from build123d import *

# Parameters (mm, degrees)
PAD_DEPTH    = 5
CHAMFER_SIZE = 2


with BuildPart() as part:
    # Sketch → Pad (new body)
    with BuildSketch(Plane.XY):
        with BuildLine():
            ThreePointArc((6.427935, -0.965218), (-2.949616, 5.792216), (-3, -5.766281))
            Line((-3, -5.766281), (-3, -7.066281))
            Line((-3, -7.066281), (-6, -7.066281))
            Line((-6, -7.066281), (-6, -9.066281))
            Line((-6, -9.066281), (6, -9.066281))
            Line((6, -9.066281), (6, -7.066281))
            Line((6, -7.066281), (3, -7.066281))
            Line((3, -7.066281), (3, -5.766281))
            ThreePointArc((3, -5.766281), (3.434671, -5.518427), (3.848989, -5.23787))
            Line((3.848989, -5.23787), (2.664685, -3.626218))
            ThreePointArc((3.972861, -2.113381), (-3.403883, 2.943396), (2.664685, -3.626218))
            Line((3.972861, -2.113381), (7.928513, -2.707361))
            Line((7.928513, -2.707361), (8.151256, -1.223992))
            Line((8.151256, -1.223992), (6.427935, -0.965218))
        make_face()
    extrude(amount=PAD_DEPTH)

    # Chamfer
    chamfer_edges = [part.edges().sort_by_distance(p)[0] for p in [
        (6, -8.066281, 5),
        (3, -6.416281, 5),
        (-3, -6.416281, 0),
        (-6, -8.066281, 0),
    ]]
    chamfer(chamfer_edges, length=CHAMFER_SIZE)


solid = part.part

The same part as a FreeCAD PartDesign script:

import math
import FreeCAD as App
import Part
import Sketcher

V = App.Vector


def edges_at(feature, points):
    """Names of the edges that pass closest to the given points."""
    edges = feature.Shape.Edges
    near = lambda p: min(range(len(edges)), key=lambda i: edges[i].distToShape(Part.Vertex(*p))[0])
    return sorted({f"Edge{near(p) + 1}" for p in points})

doc = App.newDocument("Part")
body = doc.addObject("PartDesign::Body", "Body")

sketch1 = body.newObject("Sketcher::SketchObject", "Sketch")
sketch1.AttachmentSupport = (doc.getObject("XY_Plane"), [""])
sketch1.MapMode = "FlatFace"
sketch1.addGeometry([
    Part.ArcOfCircle(Part.Circle(V(0, 0, 0), V(0, 0, 1), 6.5), math.radians(-8.539726), math.radians(242.513575)),
    Part.LineSegment(V(-3, -5.766281, 0), V(-3, -7.066281, 0)),
    Part.LineSegment(V(-3, -7.066281, 0), V(-6, -7.066281, 0)),
    Part.LineSegment(V(-6, -7.066281, 0), V(-6, -9.066281, 0)),
    Part.LineSegment(V(-6, -9.066281, 0), V(6, -9.066281, 0)),
    Part.LineSegment(V(6, -9.066281, 0), V(6, -7.066281, 0)),
    Part.LineSegment(V(6, -7.066281, 0), V(3, -7.066281, 0)),
    Part.LineSegment(V(3, -7.066281, 0), V(3, -5.766281, 0)),
    Part.ArcOfCircle(Part.Circle(V(0.000055, -0.000086, 0), V(0, 0, 1), 6.499898), math.radians(-62.51365), math.radians(-53.690058)),
    Part.LineSegment(V(3.848989, -5.23787, 0), V(2.664685, -3.626218, 0)),
    Part.ArcOfCircle(Part.Circle(V(0, 0, 0), V(0, 0, 1), 4.5), math.radians(-28.010944), math.radians(306.30988)),
    Part.LineSegment(V(3.972861, -2.113381, 0), V(7.928513, -2.707361, 0)),
    Part.LineSegment(V(7.928513, -2.707361, 0), V(8.151256, -1.223992, 0)),
    Part.LineSegment(V(8.151256, -1.223992, 0), V(6.427935, -0.965218, 0)),
], False)
sketch1.addConstraint([
    Sketcher.Constraint("Coincident", 0, 2, 1, 1),
    Sketcher.Constraint("Coincident", 1, 2, 2, 1),
    Sketcher.Constraint("Coincident", 2, 2, 3, 1),
    Sketcher.Constraint("Coincident", 3, 2, 4, 1),
    Sketcher.Constraint("Coincident", 4, 2, 5, 1),
    Sketcher.Constraint("Coincident", 5, 2, 6, 1),
    Sketcher.Constraint("Coincident", 6, 2, 7, 1),
    Sketcher.Constraint("Coincident", 7, 2, 8, 1),
    Sketcher.Constraint("Coincident", 8, 2, 9, 1),
    Sketcher.Constraint("Coincident", 9, 2, 10, 2),
    Sketcher.Constraint("Coincident", 10, 1, 11, 1),
    Sketcher.Constraint("Coincident", 11, 2, 12, 1),
    Sketcher.Constraint("Coincident", 12, 2, 13, 1),
    Sketcher.Constraint("Coincident", 13, 2, 0, 1),
    Sketcher.Constraint("Vertical", 1),
    Sketcher.Constraint("Horizontal", 2),
    Sketcher.Constraint("Vertical", 3),
    Sketcher.Constraint("Horizontal", 4),
    Sketcher.Constraint("Vertical", 5),
    Sketcher.Constraint("Horizontal", 6),
    Sketcher.Constraint("Vertical", 7),
    Sketcher.Constraint("Coincident", 0, 3, -1, 1),
    Sketcher.Constraint("Coincident", 10, 3, -1, 1),
    Sketcher.Constraint("Symmetric", 2, 2, 5, 2, -2),
    Sketcher.Constraint("Symmetric", 0, 2, 7, 2, -2),
    Sketcher.Constraint("Perpendicular", 11, 12),
    Sketcher.Constraint("Perpendicular", 12, 13),
    Sketcher.Constraint("Radius", 0, 6.5),
    Sketcher.Constraint("Radius", 10, 4.5),
    Sketcher.Constraint("DistanceX", 2, 2, 2, 1, 3.0),
    Sketcher.Constraint("DistanceX", 4, 1, 4, 2, 12.0),
    Sketcher.Constraint("DistanceY", 3, 2, 3, 1, 2.0),
    Sketcher.Constraint("Distance", 9, 2.0),
    Sketcher.Constraint("Distance", 11, 3.999999),
    Sketcher.Constraint("DistanceY", 1, 2, 1, 1, 1.3),
    Sketcher.Constraint("Distance", 12, 1.499999),
    Sketcher.Constraint("Radius", 8, 6.499898),
    Sketcher.Constraint("DistanceY", 9, 2, 13, 2, 2.661),
    Sketcher.Constraint("DistanceY", 7, 2, 10, 1, 3.6529),
    Sketcher.Constraint("Distance", 13, 1.742641),
    Sketcher.Constraint("DistanceX", -1, 1, 8, 2, 3.848989),
])
pad1 = body.newObject("PartDesign::Pad", "Pad")
pad1.Profile = sketch1
pad1.Length = 5
doc.recompute()

chamfer = body.newObject("PartDesign::Chamfer", "Chamfer")
chamfer.Base = (pad1, edges_at(pad1, [
    (6, -8.066, 5),
    (3, -6.416, 5),
    (-3, -6.416, 0),
    (-6, -8.066, 0),
]))
chamfer.Size = 2

doc.recompute()
